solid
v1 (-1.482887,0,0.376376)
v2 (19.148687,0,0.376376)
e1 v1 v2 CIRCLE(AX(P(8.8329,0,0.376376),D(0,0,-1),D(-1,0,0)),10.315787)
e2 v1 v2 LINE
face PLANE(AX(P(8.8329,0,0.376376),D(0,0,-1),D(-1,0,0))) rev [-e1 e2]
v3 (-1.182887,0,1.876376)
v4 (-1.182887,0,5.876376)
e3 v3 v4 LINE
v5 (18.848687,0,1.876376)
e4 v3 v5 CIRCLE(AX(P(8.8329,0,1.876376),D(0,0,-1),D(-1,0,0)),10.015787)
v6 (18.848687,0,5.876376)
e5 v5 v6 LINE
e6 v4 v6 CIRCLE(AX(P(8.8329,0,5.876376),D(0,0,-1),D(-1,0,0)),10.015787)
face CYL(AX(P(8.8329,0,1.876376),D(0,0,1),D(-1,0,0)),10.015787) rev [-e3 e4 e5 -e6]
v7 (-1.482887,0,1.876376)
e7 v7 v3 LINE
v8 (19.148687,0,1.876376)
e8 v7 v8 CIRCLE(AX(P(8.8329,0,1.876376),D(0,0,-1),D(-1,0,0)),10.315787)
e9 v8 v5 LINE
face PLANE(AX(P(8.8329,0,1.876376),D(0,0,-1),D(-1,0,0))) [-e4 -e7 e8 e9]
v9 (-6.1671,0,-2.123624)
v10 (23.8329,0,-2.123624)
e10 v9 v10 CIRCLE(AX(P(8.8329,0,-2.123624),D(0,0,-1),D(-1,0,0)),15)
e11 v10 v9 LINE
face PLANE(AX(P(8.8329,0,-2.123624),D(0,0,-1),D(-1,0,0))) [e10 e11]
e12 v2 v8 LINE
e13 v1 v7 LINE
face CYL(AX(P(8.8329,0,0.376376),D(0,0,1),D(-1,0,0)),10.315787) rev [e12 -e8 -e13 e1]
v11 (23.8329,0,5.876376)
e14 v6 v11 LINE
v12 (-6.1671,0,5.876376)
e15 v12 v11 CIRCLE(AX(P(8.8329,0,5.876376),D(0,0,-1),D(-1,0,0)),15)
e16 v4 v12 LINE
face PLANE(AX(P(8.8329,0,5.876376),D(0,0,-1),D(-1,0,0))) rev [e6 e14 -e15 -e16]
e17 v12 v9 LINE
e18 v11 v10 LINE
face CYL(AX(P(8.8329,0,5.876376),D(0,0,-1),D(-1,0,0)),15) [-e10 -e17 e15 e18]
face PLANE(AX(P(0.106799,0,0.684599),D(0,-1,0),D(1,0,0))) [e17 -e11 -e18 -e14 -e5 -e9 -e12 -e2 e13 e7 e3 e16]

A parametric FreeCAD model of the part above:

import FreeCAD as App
import Part
import Sketcher
Q = App.Units.Quantity

doc = App.newDocument("Part")
params = doc.addObject("Spreadsheet::Sheet", "Params")
for row, (alias, value) in enumerate([
    ("sketch1_width", "15 mm"),
    ("sketch1_height", "4 mm"),
    ("sketch1_height2", "8 mm"),
    ("sketch1_width2", "0.3 mm"),
    ("sketch1_height3", "2.5 mm"),
    ("revolution_angle", "180 deg"),
], start=1):
    params.set(f"A{row}", alias)
    params.set(f"B{row}", "=" + value)
    params.setAlias(f"B{row}", alias)

body = doc.addObject("PartDesign::Body", "Body")

# Sketch on XZ plane
sketch1 = body.newObject("Sketcher::SketchObject", "Sketch")
sketch1.AttachmentSupport = (doc.getObject("XZ_Plane"), [""])
sketch1.MapMode = "FlatFace"
sketch1.addGeometry([
    Part.LineSegment(App.Vector(-6.17, -2.12, 0), App.Vector(8.83, -2.12, 0)),  # 0
    Part.LineSegment(App.Vector(8.83, -2.12, 0), App.Vector(8.83, 0.38, 0)),  # 1
    Part.LineSegment(App.Vector(8.83, 0.38, 0), App.Vector(-1.48, 0.38, 0)),  # 2
    Part.LineSegment(App.Vector(-1.48, 0.38, 0), App.Vector(-1.48, 1.88, 0)),  # 3
    Part.LineSegment(App.Vector(-1.48, 1.88, 0), App.Vector(-1.18, 1.88, 0)),  # 4
    Part.LineSegment(App.Vector(-1.18, 1.88, 0), App.Vector(-1.18, 5.88, 0)),  # 5
    Part.LineSegment(App.Vector(-1.18, 5.88, 0), App.Vector(-6.17, 5.88, 0)),  # 6
    Part.LineSegment(App.Vector(-6.17, 5.88, 0), App.Vector(-6.17, -2.12, 0)),  # 7
], False)
sketch1.addGeometry(Part.LineSegment(App.Vector(8.83, 5.88, 0), App.Vector(8.83, -2.12, 0)), True)  # axis
sketch1.addConstraint([
    Sketcher.Constraint("Coincident", 0, 2, 1, 1),
    Sketcher.Constraint("Coincident", 1, 2, 2, 1),
    Sketcher.Constraint("Coincident", 2, 2, 3, 1),
    Sketcher.Constraint("Coincident", 3, 2, 4, 1),
    Sketcher.Constraint("Coincident", 4, 2, 5, 1),
    Sketcher.Constraint("Coincident", 5, 2, 6, 1),
    Sketcher.Constraint("Coincident", 6, 2, 7, 1),
    Sketcher.Constraint("Coincident", 7, 2, 0, 1),
    Sketcher.Constraint("Horizontal", 0),
    Sketcher.Constraint("Vertical", 1),
    Sketcher.Constraint("Horizontal", 2),
    Sketcher.Constraint("Vertical", 3),
    Sketcher.Constraint("Horizontal", 4),
    Sketcher.Constraint("Vertical", 5),
    Sketcher.Constraint("Horizontal", 6),
    Sketcher.Constraint("Vertical", 7),
    Sketcher.Constraint("Vertical", 8),
    Sketcher.Constraint("Coincident", 8, 2, 0, 2),
    Sketcher.Constraint("Horizontal", 6, 2, 8, 1),
    Sketcher.Constraint("DistanceX", 0, 1, 0, 2, Q("15 mm")),
    Sketcher.Constraint("DistanceY", 5, 1, 5, 2, Q("4 mm")),
    Sketcher.Constraint("DistanceY", 7, 2, 7, 1, Q("8 mm")),
    Sketcher.Constraint("DistanceX", 4, 1, 4, 2, Q("0.3 mm")),
    Sketcher.Constraint("DistanceY", 1, 1, 1, 2, Q("2.5 mm")),
    Sketcher.Constraint("DistanceX", -1, 1, 0, 2, Q("8.8329 mm")),
    Sketcher.Constraint("DistanceX", 2, 2, 2, 1, Q("10.315787 mm")),
    Sketcher.Constraint("DistanceY", 0, 2, -1, 1, Q("2.123624 mm")),
])
sketch1.setExpression("Constraints[19]", "Params.sketch1_width")
sketch1.setExpression("Constraints[20]", "Params.sketch1_height")
sketch1.setExpression("Constraints[21]", "Params.sketch1_height2")
sketch1.setExpression("Constraints[22]", "Params.sketch1_width2")
sketch1.setExpression("Constraints[23]", "Params.sketch1_height3")
revolution = body.newObject("PartDesign::Revolution", "Revolution")
revolution.Profile = sketch1
revolution.ReferenceAxis = (sketch1, ["Axis0"])
revolution.setExpression("Angle", "Params.revolution_angle")

doc.recompute()
